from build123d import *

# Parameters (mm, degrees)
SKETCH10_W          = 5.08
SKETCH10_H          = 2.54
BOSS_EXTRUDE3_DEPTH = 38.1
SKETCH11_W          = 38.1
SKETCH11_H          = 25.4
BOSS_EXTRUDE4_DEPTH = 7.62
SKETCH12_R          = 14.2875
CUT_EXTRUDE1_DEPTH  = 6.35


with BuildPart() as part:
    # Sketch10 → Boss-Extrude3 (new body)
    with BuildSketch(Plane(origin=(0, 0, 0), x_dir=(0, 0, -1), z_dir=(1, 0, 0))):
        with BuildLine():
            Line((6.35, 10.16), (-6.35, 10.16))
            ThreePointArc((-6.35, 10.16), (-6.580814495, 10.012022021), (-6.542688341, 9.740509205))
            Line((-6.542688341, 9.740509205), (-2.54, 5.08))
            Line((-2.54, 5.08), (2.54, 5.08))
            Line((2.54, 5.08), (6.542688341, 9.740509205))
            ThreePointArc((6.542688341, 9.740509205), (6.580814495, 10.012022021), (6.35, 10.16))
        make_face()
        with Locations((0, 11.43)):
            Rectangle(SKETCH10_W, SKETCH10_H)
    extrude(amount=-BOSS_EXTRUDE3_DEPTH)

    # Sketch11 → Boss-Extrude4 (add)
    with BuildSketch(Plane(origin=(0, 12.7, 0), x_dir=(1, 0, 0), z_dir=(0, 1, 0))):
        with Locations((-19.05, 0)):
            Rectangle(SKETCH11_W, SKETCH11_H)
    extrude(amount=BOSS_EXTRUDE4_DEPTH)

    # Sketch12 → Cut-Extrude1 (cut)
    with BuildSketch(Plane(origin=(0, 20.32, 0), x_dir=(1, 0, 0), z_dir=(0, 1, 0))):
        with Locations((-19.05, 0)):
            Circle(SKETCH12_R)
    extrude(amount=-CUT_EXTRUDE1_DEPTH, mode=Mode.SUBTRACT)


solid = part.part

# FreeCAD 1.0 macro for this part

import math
import FreeCAD as App
import Part
import Sketcher

V = App.Vector
Q = App.Units.Quantity


def add_polygon(sketch, points):
    """Adds a closed chain of lines whose ends are joined by coincident constraints."""
    first, n = sketch.GeometryCount, len(points)
    for a, b in zip(points, points[1:] + points[:1]):
        sketch.addGeometry(Part.LineSegment(App.Vector(*a, 0), App.Vector(*b, 0)), False)
    for i in range(n):
        sketch.addConstraint(Sketcher.Constraint("Coincident", first + i, 2, first + (i + 1) % n, 1))

doc = App.newDocument("Part")
body = doc.addObject("PartDesign::Body", "Body")

sketch1 = body.newObject("Sketcher::SketchObject", "Sketch")
sketch1.AttachmentSupport = (doc.getObject("YZ_Plane"), [""])
sketch1.MapMode = "FlatFace"
sketch1.addGeometry([
    Part.LineSegment(V(10.16, -6.35, 0), V(10.16, -2.54, 0)),
    Part.LineSegment(V(10.16, -2.54, 0), V(12.7, -2.54, 0)),
    Part.LineSegment(V(12.7, -2.54, 0), V(12.7, 2.54, 0)),
    Part.LineSegment(V(12.7, 2.54, 0), V(10.16, 2.54, 0)),
    Part.LineSegment(V(10.16, 2.54, 0), V(10.16, 6.35, 0)),
    Part.ArcOfCircle(Part.Circle(V(9.91, 6.35, 0), V(0, 0, 1), 0.25), math.radians(0), math.radians(131)),
    Part.LineSegment(V(9.74, 6.54, 0), V(5.08, 2.54, 0)),
    Part.LineSegment(V(5.08, 2.54, 0), V(5.08, -2.54, 0)),
    Part.LineSegment(V(5.08, -2.54, 0), V(9.74, -6.54, 0)),
    Part.ArcOfCircle(Part.Circle(V(9.91, -6.35, 0), V(0, 0, 1), 0.25), math.radians(-131), math.radians(0)),
], False)
sketch1.addConstraint([
    Sketcher.Constraint("Coincident", 0, 2, 1, 1),
    Sketcher.Constraint("Coincident", 1, 2, 2, 1),
    Sketcher.Constraint("Coincident", 2, 2, 3, 1),
    Sketcher.Constraint("Coincident", 3, 2, 4, 1),
    Sketcher.Constraint("Tangent", 4, 2, 5, 1),
    Sketcher.Constraint("Tangent", 5, 2, 6, 1),
    Sketcher.Constraint("Coincident", 6, 2, 7, 1),
    Sketcher.Constraint("Coincident", 7, 2, 8, 1),
    Sketcher.Constraint("Tangent", 8, 2, 9, 1),
    Sketcher.Constraint("Tangent", 9, 2, 0, 1),
    Sketcher.Constraint("Vertical", 0),
    Sketcher.Constraint("Horizontal", 1),
    Sketcher.Constraint("Vertical", 2),
    Sketcher.Constraint("Horizontal", 3),
    Sketcher.Constraint("Vertical", 4),
    Sketcher.Constraint("Vertical", 7),
    Sketcher.Constraint("Equal", 5, 9),
    Sketcher.Constraint("Symmetric", 5, 3, 9, 3, -1),
    Sketcher.Constraint("Horizontal", 3, 2, 6, 2),
    Sketcher.Constraint("Horizontal", 1, 2, 7, 2),
    Sketcher.Constraint("Vertical", 5, 2, 8, 2),
    Sketcher.Constraint("Radius", 5, Q("0.01 in")),
    Sketcher.Constraint("DistanceX", 1, 1, 1, 2, Q("0.1 in")),
    Sketcher.Constraint("DistanceY", 2, 1, 2, 2, Q("0.2 in")),
    Sketcher.Constraint("DistanceY", 0, 1, 0, 2, Q("0.15 in")),
    Sketcher.Constraint("DistanceX", -1, 1, 0, 2, Q("0.4 in")),
    Sketcher.Constraint("DistanceX", -1, 1, 6, 2, Q("0.2 in")),
])
pad1 = body.newObject("PartDesign::Pad", "Pad")
pad1.Profile = sketch1
pad1.Length = Q("1.5 in")
pad1.Reversed = True

sketch2 = body.newObject("Sketcher::SketchObject", "Sketch001")
sketch2.AttachmentSupport = (doc.getObject("XZ_Plane"), [""])
sketch2.MapMode = "FlatFace"
sketch2.AttachmentOffset = App.Placement(V(0, 0, -0.5 * 25.4), App.Rotation())
add_polygon(sketch2, [(-38, -13), (-38, 13), (0, 13), (0, -13)])
sketch2.addConstraint([
    Sketcher.Constraint("Vertical", 0),
    Sketcher.Constraint("Horizontal", 1),
    Sketcher.Constraint("Vertical", 2),
    Sketcher.Constraint("Horizontal", 3),
    Sketcher.Constraint("Symmetric", 1, 2, 2, 2, -1, 1),
    Sketcher.Constraint("DistanceY", 0, 1, 0, 2, Q("1 in")),
    Sketcher.Constraint("DistanceX", 1, 1, 1, 2, Q("1.5 in")),
])
pad2 = body.newObject("PartDesign::Pad", "Pad001")
pad2.Profile = sketch2
pad2.Length = Q("0.3 in")
pad2.Reversed = True

sketch3 = body.newObject("Sketcher::SketchObject", "Sketch002")
sketch3.AttachmentSupport = (doc.getObject("XZ_Plane"), [""])
sketch3.MapMode = "FlatFace"
sketch3.AttachmentOffset = App.Placement(V(0, 0, -0.8 * 25.4), App.Rotation())
sketch3.addGeometry(Part.Circle(V(-19, 0, 0), V(0, 0, 1), 14), False)
sketch3.addConstraint([
    Sketcher.Constraint("PointOnObject", 0, 3, -1),
    Sketcher.Constraint("Diameter", 0, Q("1.125 in")),
    Sketcher.Constraint("DistanceX", 0, 3, -1, 1, Q("0.75 in")),
])
pocket1 = body.newObject("PartDesign::Pocket", "Pocket")
pocket1.Profile = sketch3
pocket1.Length = Q("0.25 in")
pocket1.Reversed = True

doc.recompute()
